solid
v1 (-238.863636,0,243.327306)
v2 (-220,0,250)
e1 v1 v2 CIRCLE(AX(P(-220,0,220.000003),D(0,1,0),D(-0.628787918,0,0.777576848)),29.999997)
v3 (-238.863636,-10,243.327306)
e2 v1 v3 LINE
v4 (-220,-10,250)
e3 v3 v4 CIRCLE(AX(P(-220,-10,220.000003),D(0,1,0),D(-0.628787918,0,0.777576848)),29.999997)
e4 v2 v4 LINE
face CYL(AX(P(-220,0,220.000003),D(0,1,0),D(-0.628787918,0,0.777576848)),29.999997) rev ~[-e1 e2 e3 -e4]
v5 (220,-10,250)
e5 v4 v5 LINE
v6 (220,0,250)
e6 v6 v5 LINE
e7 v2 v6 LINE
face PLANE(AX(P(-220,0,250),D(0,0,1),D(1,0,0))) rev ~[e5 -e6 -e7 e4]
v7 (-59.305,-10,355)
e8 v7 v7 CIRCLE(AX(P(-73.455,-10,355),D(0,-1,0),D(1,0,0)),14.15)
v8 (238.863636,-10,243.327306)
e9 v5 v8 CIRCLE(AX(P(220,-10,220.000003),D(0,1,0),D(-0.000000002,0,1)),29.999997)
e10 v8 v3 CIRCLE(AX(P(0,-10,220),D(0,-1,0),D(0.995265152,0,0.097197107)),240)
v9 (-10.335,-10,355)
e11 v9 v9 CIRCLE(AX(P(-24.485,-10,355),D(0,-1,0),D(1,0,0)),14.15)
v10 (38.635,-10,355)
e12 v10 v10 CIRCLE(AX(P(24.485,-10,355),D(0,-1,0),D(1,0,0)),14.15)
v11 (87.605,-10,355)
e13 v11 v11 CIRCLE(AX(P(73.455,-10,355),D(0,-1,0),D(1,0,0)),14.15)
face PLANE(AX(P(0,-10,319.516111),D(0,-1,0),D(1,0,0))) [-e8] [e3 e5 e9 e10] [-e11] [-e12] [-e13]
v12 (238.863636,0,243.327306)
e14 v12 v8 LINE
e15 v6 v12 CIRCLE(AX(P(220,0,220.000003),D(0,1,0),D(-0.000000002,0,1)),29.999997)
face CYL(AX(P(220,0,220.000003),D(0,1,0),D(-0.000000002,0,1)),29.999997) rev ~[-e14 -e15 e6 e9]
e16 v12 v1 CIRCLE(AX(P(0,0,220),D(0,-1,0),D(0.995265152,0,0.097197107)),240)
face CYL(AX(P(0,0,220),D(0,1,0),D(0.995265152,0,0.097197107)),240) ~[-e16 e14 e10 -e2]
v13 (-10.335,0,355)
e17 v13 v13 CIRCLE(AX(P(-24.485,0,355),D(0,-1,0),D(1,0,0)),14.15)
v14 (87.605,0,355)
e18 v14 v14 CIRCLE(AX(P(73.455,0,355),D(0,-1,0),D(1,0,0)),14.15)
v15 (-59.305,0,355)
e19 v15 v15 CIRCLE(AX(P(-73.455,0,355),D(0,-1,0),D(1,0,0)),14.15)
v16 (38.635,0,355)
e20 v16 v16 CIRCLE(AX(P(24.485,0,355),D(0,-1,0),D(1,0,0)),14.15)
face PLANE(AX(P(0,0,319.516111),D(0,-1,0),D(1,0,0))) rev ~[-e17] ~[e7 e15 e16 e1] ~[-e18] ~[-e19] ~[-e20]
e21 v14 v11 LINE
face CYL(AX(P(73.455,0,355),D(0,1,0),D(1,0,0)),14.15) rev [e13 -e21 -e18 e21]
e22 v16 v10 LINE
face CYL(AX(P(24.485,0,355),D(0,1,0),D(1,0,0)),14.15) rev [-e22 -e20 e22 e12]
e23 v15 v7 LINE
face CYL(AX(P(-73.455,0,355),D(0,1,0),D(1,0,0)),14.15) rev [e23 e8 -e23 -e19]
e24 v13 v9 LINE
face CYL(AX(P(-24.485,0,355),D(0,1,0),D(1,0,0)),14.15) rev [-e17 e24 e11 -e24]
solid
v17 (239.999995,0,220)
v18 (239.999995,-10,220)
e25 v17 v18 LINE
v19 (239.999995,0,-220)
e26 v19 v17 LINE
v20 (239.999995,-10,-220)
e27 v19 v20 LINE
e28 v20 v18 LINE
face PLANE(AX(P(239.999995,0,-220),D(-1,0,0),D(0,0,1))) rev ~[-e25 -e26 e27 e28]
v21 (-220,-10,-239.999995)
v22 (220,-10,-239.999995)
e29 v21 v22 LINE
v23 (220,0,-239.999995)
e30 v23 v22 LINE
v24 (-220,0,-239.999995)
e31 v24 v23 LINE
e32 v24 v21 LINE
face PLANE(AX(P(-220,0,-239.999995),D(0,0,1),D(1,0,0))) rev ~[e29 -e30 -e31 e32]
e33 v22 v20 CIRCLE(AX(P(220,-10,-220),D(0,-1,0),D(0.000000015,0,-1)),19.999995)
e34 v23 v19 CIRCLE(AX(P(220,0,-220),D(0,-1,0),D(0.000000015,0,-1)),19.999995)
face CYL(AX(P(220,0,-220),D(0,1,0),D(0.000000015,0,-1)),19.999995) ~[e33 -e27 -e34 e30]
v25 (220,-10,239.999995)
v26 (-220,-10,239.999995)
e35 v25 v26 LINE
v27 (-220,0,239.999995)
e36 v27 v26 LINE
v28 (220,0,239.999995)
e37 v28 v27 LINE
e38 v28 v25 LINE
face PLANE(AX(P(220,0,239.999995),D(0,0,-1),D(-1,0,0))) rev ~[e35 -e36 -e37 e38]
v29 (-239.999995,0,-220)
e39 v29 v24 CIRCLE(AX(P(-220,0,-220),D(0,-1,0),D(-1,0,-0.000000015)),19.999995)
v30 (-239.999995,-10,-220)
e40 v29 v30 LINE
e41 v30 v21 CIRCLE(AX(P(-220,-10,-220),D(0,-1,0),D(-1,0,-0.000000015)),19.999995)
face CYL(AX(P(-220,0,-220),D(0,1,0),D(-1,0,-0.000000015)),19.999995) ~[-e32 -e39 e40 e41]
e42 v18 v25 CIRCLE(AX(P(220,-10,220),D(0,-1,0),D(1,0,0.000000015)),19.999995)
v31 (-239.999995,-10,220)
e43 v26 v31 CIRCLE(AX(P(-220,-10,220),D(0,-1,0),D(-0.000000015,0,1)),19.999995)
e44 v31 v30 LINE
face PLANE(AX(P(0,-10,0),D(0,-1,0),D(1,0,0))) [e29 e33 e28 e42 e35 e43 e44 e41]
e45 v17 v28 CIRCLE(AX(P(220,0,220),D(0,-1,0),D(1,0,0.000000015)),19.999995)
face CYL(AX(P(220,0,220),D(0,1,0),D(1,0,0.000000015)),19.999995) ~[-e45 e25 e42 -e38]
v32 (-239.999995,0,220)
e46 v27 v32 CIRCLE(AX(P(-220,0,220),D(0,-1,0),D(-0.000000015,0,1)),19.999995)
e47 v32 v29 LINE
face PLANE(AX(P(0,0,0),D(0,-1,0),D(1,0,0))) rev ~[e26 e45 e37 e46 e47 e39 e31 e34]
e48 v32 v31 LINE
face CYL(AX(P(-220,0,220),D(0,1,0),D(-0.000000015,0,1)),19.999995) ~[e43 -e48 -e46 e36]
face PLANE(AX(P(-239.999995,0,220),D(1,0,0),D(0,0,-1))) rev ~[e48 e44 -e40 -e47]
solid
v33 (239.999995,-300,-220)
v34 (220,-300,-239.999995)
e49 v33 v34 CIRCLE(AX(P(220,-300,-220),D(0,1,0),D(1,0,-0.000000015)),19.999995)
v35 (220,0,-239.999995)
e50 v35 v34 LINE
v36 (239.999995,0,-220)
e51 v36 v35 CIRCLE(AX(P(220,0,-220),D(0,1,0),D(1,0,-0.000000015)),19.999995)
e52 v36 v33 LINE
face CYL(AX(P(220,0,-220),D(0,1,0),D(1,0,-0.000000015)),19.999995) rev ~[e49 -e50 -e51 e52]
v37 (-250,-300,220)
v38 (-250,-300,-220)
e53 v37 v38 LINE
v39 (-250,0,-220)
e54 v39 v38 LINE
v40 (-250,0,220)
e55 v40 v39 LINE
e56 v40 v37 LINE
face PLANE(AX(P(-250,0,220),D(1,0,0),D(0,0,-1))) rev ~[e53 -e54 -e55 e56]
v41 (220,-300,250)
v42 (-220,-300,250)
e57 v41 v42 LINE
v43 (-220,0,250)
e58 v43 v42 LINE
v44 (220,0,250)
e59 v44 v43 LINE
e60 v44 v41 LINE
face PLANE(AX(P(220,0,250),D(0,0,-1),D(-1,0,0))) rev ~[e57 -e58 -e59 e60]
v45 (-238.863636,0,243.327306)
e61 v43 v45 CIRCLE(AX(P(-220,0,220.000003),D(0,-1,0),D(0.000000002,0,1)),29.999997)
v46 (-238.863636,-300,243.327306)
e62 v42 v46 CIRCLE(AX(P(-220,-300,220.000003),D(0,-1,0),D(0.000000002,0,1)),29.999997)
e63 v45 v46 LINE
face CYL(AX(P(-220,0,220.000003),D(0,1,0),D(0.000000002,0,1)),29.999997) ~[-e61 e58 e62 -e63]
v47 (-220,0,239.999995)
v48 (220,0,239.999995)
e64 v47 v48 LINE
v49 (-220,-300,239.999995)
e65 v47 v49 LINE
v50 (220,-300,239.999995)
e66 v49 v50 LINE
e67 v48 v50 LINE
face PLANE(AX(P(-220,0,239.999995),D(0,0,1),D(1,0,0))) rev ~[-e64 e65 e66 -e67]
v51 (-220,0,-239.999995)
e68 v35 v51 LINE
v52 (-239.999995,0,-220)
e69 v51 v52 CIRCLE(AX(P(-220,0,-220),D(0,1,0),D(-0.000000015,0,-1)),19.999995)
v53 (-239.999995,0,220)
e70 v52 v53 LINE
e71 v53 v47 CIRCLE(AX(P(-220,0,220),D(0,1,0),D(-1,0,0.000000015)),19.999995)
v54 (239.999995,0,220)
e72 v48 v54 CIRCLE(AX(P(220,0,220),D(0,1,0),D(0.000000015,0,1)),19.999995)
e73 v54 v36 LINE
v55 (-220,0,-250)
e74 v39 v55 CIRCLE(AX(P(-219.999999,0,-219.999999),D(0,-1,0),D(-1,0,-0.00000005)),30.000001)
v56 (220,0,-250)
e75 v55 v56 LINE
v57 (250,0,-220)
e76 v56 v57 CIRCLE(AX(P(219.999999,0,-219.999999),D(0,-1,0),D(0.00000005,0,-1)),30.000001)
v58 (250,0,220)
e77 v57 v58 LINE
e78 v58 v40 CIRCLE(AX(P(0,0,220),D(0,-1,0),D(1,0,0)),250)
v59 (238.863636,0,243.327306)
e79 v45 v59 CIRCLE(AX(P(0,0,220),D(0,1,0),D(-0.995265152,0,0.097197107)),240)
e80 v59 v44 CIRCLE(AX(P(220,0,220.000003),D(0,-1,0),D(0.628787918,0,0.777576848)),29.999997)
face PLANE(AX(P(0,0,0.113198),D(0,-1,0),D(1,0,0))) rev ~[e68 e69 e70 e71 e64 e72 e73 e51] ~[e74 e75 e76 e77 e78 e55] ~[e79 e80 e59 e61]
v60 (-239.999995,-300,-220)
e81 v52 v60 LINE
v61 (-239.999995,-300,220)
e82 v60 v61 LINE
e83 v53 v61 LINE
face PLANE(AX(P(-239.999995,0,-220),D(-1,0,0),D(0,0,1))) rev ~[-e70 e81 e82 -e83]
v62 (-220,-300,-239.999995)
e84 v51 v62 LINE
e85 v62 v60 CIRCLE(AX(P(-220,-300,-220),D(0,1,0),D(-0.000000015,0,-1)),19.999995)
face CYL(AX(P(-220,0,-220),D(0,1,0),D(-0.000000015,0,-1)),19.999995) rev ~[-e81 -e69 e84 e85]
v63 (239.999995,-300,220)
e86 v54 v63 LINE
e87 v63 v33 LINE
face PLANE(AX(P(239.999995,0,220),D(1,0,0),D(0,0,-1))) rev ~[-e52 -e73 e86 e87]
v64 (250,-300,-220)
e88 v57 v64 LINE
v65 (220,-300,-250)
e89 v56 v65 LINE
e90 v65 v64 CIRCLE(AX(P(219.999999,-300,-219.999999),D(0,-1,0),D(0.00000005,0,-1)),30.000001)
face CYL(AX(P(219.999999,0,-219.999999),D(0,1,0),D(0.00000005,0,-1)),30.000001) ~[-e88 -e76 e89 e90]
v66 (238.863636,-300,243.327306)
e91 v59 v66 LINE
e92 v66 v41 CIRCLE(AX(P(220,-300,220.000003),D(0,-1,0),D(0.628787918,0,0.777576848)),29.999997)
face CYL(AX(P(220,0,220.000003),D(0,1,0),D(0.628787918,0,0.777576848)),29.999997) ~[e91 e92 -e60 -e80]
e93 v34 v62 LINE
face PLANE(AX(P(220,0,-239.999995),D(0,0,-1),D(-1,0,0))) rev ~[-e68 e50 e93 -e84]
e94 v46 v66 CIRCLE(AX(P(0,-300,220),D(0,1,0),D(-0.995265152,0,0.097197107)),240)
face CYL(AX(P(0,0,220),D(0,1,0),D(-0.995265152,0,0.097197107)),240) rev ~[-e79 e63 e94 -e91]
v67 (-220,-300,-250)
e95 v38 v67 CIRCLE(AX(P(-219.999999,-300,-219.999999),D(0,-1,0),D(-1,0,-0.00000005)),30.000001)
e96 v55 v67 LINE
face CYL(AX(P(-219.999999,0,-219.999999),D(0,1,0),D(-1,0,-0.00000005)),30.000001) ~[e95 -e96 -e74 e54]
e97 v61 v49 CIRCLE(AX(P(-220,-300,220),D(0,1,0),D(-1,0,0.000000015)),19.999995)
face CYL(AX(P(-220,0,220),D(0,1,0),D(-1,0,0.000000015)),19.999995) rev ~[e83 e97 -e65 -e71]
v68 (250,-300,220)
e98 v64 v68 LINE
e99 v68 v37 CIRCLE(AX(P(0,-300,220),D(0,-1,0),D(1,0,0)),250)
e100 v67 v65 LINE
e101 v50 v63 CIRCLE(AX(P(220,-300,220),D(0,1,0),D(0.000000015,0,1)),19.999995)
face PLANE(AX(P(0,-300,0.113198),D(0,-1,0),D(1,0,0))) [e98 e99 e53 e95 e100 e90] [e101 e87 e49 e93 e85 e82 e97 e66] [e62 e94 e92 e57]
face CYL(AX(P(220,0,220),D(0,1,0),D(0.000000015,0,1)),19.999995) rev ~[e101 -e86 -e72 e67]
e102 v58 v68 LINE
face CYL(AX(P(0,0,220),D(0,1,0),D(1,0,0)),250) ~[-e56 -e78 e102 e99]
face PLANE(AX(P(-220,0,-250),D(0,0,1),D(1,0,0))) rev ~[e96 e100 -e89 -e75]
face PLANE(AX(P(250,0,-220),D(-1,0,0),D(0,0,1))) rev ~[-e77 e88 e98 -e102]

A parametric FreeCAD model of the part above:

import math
import FreeCAD as App
import Part
import Sketcher
from FreeCAD import Vector
Q = App.Units.Quantity

doc = App.newDocument("Part")
body = doc.addObject("PartDesign::Body", "Body")
body.AllowCompound = True

# Sketch on XZ plane
sketch1 = body.newObject("Sketcher::SketchObject", "Sketch")
sketch1.AttachmentSupport = (doc.getObject("XZ_Plane"), [""])
sketch1.MapMode = "FlatFace"
sketch1.addGeometry(Part.LineSegment(Vector(220, 240, 0), Vector(-220, 240, 0)), False)
sketch1.addGeometry(Part.ArcOfCircle(Part.Circle(Vector(-220, 220, 0), Vector(0, 0, 1), 20), math.radians(90), math.radians(180)), False)
sketch1.addGeometry(Part.LineSegment(Vector(-240, 220, 0), Vector(-240, -220, 0)), False)
sketch1.addGeometry(Part.ArcOfCircle(Part.Circle(Vector(-220, -220, 0), Vector(0, 0, 1), 20), math.radians(-180), math.radians(-90)), False)
sketch1.addGeometry(Part.LineSegment(Vector(-220, -240, 0), Vector(220, -240, 0)), False)
sketch1.addGeometry(Part.ArcOfCircle(Part.Circle(Vector(220, -220, 0), Vector(0, 0, 1), 20), math.radians(-90), math.radians(0)), False)
sketch1.addGeometry(Part.LineSegment(Vector(240, -220, 0), Vector(240, 220, 0)), False)
sketch1.addGeometry(Part.ArcOfCircle(Part.Circle(Vector(220, 220, 0), Vector(0, 0, 1), 20), math.radians(0), math.radians(90)), False)
sketch1.addGeometry(Part.ArcOfCircle(Part.Circle(Vector(-220, 220, 0), Vector(0, 0, 1), 30), math.radians(90), math.radians(129)), False)
sketch1.addGeometry(Part.LineSegment(Vector(-220, 250, 0), Vector(220, 250, 0)), False)
sketch1.addGeometry(Part.ArcOfCircle(Part.Circle(Vector(220, 220, 0), Vector(0, 0, 1), 30), math.radians(51), math.radians(90)), False)
sketch1.addGeometry(Part.ArcOfCircle(Part.Circle(Vector(0, 220, 0), Vector(0, 0, 1), 240), math.radians(6), math.radians(174)), False)
sketch1.addGeometry(Part.Circle(Vector(-73, 355, 0), Vector(0, 0, 1), 14), False)
sketch1.addGeometry(Part.Circle(Vector(-24, 355, 0), Vector(0, 0, 1), 14), False)
sketch1.addGeometry(Part.Circle(Vector(24, 355, 0), Vector(0, 0, 1), 14), False)
sketch1.addGeometry(Part.Circle(Vector(73, 355, 0), Vector(0, 0, 1), 14), False)
sketch1.addConstraint(Sketcher.Constraint("Tangent", 0, 2, 1, 1))
sketch1.addConstraint(Sketcher.Constraint("Tangent", 1, 2, 2, 1))
sketch1.addConstraint(Sketcher.Constraint("Tangent", 2, 2, 3, 1))
sketch1.addConstraint(Sketcher.Constraint("Tangent", 3, 2, 4, 1))
sketch1.addConstraint(Sketcher.Constraint("Tangent", 4, 2, 5, 1))
sketch1.addConstraint(Sketcher.Constraint("Tangent", 5, 2, 6, 1))
sketch1.addConstraint(Sketcher.Constraint("Tangent", 6, 2, 7, 1))
sketch1.addConstraint(Sketcher.Constraint("Tangent", 7, 2, 0, 1))
sketch1.addConstraint(Sketcher.Constraint("Tangent", 8, 1, 9, 1))
sketch1.addConstraint(Sketcher.Constraint("Tangent", 9, 2, 10, 2))
sketch1.addConstraint(Sketcher.Constraint("Coincident", 10, 1, 11, 1))
sketch1.addConstraint(Sketcher.Constraint("Coincident", 11, 2, 8, 2))
sketch1.addConstraint(Sketcher.Constraint("Horizontal", 0))
sketch1.addConstraint(Sketcher.Constraint("Vertical", 2))
sketch1.addConstraint(Sketcher.Constraint("Horizontal", 4))
sketch1.addConstraint(Sketcher.Constraint("Vertical", 6))
sketch1.addConstraint(Sketcher.Constraint("Horizontal", 9))
sketch1.addConstraint(Sketcher.Constraint("Coincident", 8, 3, 1, 3))
sketch1.addConstraint(Sketcher.Constraint("Coincident", 10, 3, 7, 3))
sketch1.addConstraint(Sketcher.Constraint("Equal", 1, 3))
sketch1.addConstraint(Sketcher.Constraint("Equal", 3, 5))
sketch1.addConstraint(Sketcher.Constraint("Equal", 5, 7))
sketch1.addConstraint(Sketcher.Constraint("Equal", 12, 13))
sketch1.addConstraint(Sketcher.Constraint("Equal", 13, 14))
sketch1.addConstraint(Sketcher.Constraint("Equal", 14, 15))
sketch1.addConstraint(Sketcher.Constraint("Symmetric", 1, 3, 5, 3, -1, 1))
sketch1.addConstraint(Sketcher.Constraint("Symmetric", 13, 3, 14, 3, -2))
sketch1.addConstraint(Sketcher.Constraint("Symmetric", 12, 3, 15, 3, -2))
sketch1.addConstraint(Sketcher.Constraint("PointOnObject", 11, 3, -2))
sketch1.addConstraint(Sketcher.Constraint("Horizontal", 7, 3, 11, 3))
sketch1.addConstraint(Sketcher.Constraint("Horizontal", 12, 3, 13, 3))
sketch1.addConstraint(Sketcher.Constraint("Equal", 9, 2))
sketch1.addConstraint(Sketcher.Constraint("Radius", 11, Q("240 mm")))
sketch1.addConstraint(Sketcher.Constraint("Diameter", 12, Q("28.3 mm")))
sketch1.addConstraint(Sketcher.Constraint("DistanceX", 0, 2, 0, 1, Q("440 mm")))
sketch1.addConstraint(Sketcher.Constraint("DistanceY", -1, 1, 12, 3, Q("355 mm")))
sketch1.addConstraint(Sketcher.Constraint("DistanceY", -1, 1, 8, 1, Q("250 mm")))
sketch1.addConstraint(Sketcher.Constraint("DistanceX", 12, 3, 13, 3, Q("48.97 mm")))
sketch1.addConstraint(Sketcher.Constraint("DistanceX", 13, 3, 14, 3, Q("48.97 mm")))
sketch1.addConstraint(Sketcher.Constraint("Radius", 1, Q("19.999995 mm")))
pad1 = body.newObject("PartDesign::Pad", "Pad")
pad1.Profile = sketch1
pad1.Length = 10
body2 = doc.addObject("PartDesign::Body", "Body001")

# Sketch on XZ plane
sketch2 = body2.newObject("Sketcher::SketchObject", "Sketch001")
sketch2.AttachmentSupport = (doc.getObject("XZ_Plane001"), [""])
sketch2.MapMode = "FlatFace"
sketch2.addGeometry(Part.LineSegment(Vector(250, -220, 0), Vector(250, 220, 0)), False)
sketch2.addGeometry(Part.ArcOfCircle(Part.Circle(Vector(0, 220, 0), Vector(0, 0, 1), 250), math.radians(0), math.radians(180)), False)
sketch2.addGeometry(Part.LineSegment(Vector(-250, 220, 0), Vector(-250, -220, 0)), False)
sketch2.addGeometry(Part.ArcOfCircle(Part.Circle(Vector(-220, -220, 0), Vector(0, 0, 1), 30), math.radians(-180), math.radians(-90)), False)
sketch2.addGeometry(Part.LineSegment(Vector(-220, -250, 0), Vector(220, -250, 0)), False)
sketch2.addGeometry(Part.ArcOfCircle(Part.Circle(Vector(220, -220, 0), Vector(0, 0, 1), 30), math.radians(-90), math.radians(0)), False)
sketch2.addGeometry(Part.LineSegment(Vector(220, 250, 0), Vector(-220, 250, 0)), False)
sketch2.addGeometry(Part.ArcOfCircle(Part.Circle(Vector(-220, 220, 0), Vector(0, 0, 1), 30), math.radians(90), math.radians(129)), False)
sketch2.addGeometry(Part.ArcOfCircle(Part.Circle(Vector(0, 220, 0), Vector(0, 0, 1), 240), math.radians(6), math.radians(174)), False)
sketch2.addGeometry(Part.ArcOfCircle(Part.Circle(Vector(220, 220, 0), Vector(0, 0, 1), 30), math.radians(51), math.radians(90)), False)
sketch2.addGeometry(Part.LineSegment(Vector(-240, -220, 0), Vector(-240, 220, 0)), False)
sketch2.addGeometry(Part.ArcOfCircle(Part.Circle(Vector(-220, 220, 0), Vector(0, 0, 1), 20), math.radians(90), math.radians(180)), False)
sketch2.addGeometry(Part.LineSegment(Vector(-220, 240, 0), Vector(220, 240, 0)), False)
sketch2.addGeometry(Part.ArcOfCircle(Part.Circle(Vector(220, 220, 0), Vector(0, 0, 1), 20), math.radians(0), math.radians(90)), False)
sketch2.addGeometry(Part.LineSegment(Vector(240, 220, 0), Vector(240, -220, 0)), False)
sketch2.addGeometry(Part.ArcOfCircle(Part.Circle(Vector(220, -220, 0), Vector(0, 0, 1), 20), math.radians(-90), math.radians(0)), False)
sketch2.addGeometry(Part.LineSegment(Vector(220, -240, 0), Vector(-220, -240, 0)), False)
sketch2.addGeometry(Part.ArcOfCircle(Part.Circle(Vector(-220, -220, 0), Vector(0, 0, 1), 20), math.radians(-180), math.radians(-90)), False)
sketch2.addConstraint(Sketcher.Constraint("Tangent", 0, 2, 1, 1))
sketch2.addConstraint(Sketcher.Constraint("Tangent", 1, 2, 2, 1))
sketch2.addConstraint(Sketcher.Constraint("Tangent", 2, 2, 3, 1))
sketch2.addConstraint(Sketcher.Constraint("Tangent", 3, 2, 4, 1))
sketch2.addConstraint(Sketcher.Constraint("Tangent", 4, 2, 5, 1))
sketch2.addConstraint(Sketcher.Constraint("Tangent", 5, 2, 0, 1))
sketch2.addConstraint(Sketcher.Constraint("Tangent", 6, 2, 7, 1))
sketch2.addConstraint(Sketcher.Constraint("Coincident", 7, 2, 8, 2))
sketch2.addConstraint(Sketcher.Constraint("Coincident", 8, 1, 9, 1))
sketch2.addConstraint(Sketcher.Constraint("Tangent", 9, 2, 6, 1))
sketch2.addConstraint(Sketcher.Constraint("Tangent", 10, 2, 11, 2))
sketch2.addConstraint(Sketcher.Constraint("Tangent", 11, 1, 12, 1))
sketch2.addConstraint(Sketcher.Constraint("Tangent", 12, 2, 13, 2))
sketch2.addConstraint(Sketcher.Constraint("Tangent", 13, 1, 14, 1))
sketch2.addConstraint(Sketcher.Constraint("Tangent", 14, 2, 15, 2))
sketch2.addConstraint(Sketcher.Constraint("Tangent", 15, 1, 16, 1))
sketch2.addConstraint(Sketcher.Constraint("Tangent", 16, 2, 17, 2))
sketch2.addConstraint(Sketcher.Constraint("Tangent", 17, 1, 10, 1))
sketch2.addConstraint(Sketcher.Constraint("Vertical", 0))
sketch2.addConstraint(Sketcher.Constraint("Vertical", 2))
sketch2.addConstraint(Sketcher.Constraint("Horizontal", 4))
sketch2.addConstraint(Sketcher.Constraint("Horizontal", 6))
sketch2.addConstraint(Sketcher.Constraint("Vertical", 10))
sketch2.addConstraint(Sketcher.Constraint("Horizontal", 12))
sketch2.addConstraint(Sketcher.Constraint("Vertical", 14))
sketch2.addConstraint(Sketcher.Constraint("Horizontal", 16))
sketch2.addConstraint(Sketcher.Constraint("Coincident", 8, 3, 1, 3))
sketch2.addConstraint(Sketcher.Constraint("Coincident", 11, 3, 7, 3))
sketch2.addConstraint(Sketcher.Constraint("Coincident", 13, 3, 9, 3))
sketch2.addConstraint(Sketcher.Constraint("Coincident", 15, 3, 5, 3))
sketch2.addConstraint(Sketcher.Constraint("Coincident", 17, 3, 3, 3))
sketch2.addConstraint(Sketcher.Constraint("Equal", 3, 5))
sketch2.addConstraint(Sketcher.Constraint("Equal", 7, 9))
sketch2.addConstraint(Sketcher.Constraint("Equal", 13, 15))
sketch2.addConstraint(Sketcher.Constraint("Symmetric", 5, 3, 7, 3, -1, 1))
sketch2.addConstraint(Sketcher.Constraint("Horizontal", 8, 3, 11, 3))
sketch2.addConstraint(Sketcher.Constraint("Equal", 16, 0))
sketch2.addConstraint(Sketcher.Constraint("Radius", 1, Q("250 mm")))
sketch2.addConstraint(Sketcher.Constraint("Radius", 3, Q("30.000001 mm")))
sketch2.addConstraint(Sketcher.Constraint("Radius", 8, Q("240 mm")))
sketch2.addConstraint(Sketcher.Constraint("DistanceY", -1, 1, 6, 2, Q("250 mm")))
sketch2.addConstraint(Sketcher.Constraint("Radius", 11, Q("19.999995 mm")))
pad2 = body2.newObject("PartDesign::Pad", "Pad001")
pad2.Profile = sketch2
pad2.Length = 300

doc.recompute()
